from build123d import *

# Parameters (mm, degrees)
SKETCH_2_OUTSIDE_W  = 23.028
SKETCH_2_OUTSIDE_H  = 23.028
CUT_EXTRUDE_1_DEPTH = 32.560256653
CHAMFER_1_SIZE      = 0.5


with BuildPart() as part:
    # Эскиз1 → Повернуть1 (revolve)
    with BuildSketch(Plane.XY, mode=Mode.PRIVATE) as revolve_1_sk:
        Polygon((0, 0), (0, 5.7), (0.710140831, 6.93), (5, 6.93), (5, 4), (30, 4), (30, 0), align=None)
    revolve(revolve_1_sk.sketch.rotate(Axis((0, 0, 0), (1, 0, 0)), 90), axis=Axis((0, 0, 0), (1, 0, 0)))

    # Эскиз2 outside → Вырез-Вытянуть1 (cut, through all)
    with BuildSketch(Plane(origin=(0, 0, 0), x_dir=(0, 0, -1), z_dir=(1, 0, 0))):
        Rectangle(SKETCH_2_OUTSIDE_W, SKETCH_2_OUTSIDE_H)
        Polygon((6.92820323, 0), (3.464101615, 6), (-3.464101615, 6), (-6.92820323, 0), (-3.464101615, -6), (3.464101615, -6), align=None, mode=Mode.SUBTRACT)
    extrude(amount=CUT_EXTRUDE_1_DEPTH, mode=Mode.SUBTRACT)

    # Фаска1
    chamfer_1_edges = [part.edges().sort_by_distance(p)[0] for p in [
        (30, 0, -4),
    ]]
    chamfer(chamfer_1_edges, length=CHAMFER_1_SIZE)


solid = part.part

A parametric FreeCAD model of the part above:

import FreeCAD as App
import Part
import Sketcher
from FreeCAD import Vector
Q = App.Units.Quantity


def edges_at(feature, points):
    """Names of the edges that pass closest to the given points."""
    edges = feature.Shape.Edges
    near = lambda p: min(range(len(edges)), key=lambda i: edges[i].distToShape(Part.Vertex(*p))[0])
    return sorted({f"Edge{near(p) + 1}" for p in points})


def add_polygon(sketch, points):
    """Adds a closed chain of lines whose ends are joined by coincident constraints."""
    first, n = sketch.GeometryCount, len(points)
    for a, b in zip(points, points[1:] + points[:1]):
        sketch.addGeometry(Part.LineSegment(App.Vector(*a, 0), App.Vector(*b, 0)), False)
    for i in range(n):
        sketch.addConstraint(Sketcher.Constraint("Coincident", first + i, 2, first + (i + 1) % n, 1))

doc = App.newDocument("Part")
body = doc.addObject("PartDesign::Body", "Body")

# Sketch on XY plane
sketch1 = body.newObject("Sketcher::SketchObject", "Sketch")
sketch1.AttachmentSupport = (doc.getObject("XY_Plane"), [""])
sketch1.MapMode = "FlatFace"
add_polygon(sketch1, [(0, 5.7), (0, 0), (30, 0), (30, 4), (5, 4), (5, 6.9), (0.7, 6.9)])  # lines 0-6
sketch1.addConstraint([
    Sketcher.Constraint("Vertical", 0),
    Sketcher.Constraint("Horizontal", 1),
    Sketcher.Constraint("Vertical", 2),
    Sketcher.Constraint("Horizontal", 3),
    Sketcher.Constraint("Vertical", 4),
    Sketcher.Constraint("Horizontal", 5),
    Sketcher.Constraint("Coincident", 0, 2, -1, 1),
    Sketcher.Constraint("DistanceX", 1, 1, 1, 2, 30.0),
    Sketcher.Constraint("DistanceX", 3, 2, 3, 1, 25.0),
    Sketcher.Constraint("DistanceY", 2, 1, 2, 2, 4.0),
    Sketcher.Constraint("Angle", 6, Q("-120 deg")),
    Sketcher.Constraint("DistanceY", 0, 2, 0, 1, 5.7),
    Sketcher.Constraint("DistanceY", 4, 1, 4, 2, 2.93),
])
revolution = body.newObject("PartDesign::Revolution", "Revolution")
revolution.Profile = sketch1
revolution.ReferenceAxis = (sketch1, ["H_Axis"])
revolution.Angle = 360

# Sketch on YZ plane
sketch2 = body.newObject("Sketcher::SketchObject", "Sketch001")
sketch2.AttachmentSupport = (doc.getObject("YZ_Plane"), [""])
sketch2.MapMode = "FlatFace"
add_polygon(sketch2, [(12, 12), (-12, 12), (-12, -12), (12, -12)])  # lines 0-3
add_polygon(sketch2, [(6, -3), (0, -7), (-6, -3), (-6, 3), (0, 7), (6, 3)])  # lines 4-9
sketch2.addConstraint([
    Sketcher.Constraint("Horizontal", 0),
    Sketcher.Constraint("Vertical", 1),
    Sketcher.Constraint("Horizontal", 2),
    Sketcher.Constraint("Vertical", 3),
    Sketcher.Constraint("Vertical", 6),
    Sketcher.Constraint("Vertical", 9),
    Sketcher.Constraint("Symmetric", 0, 2, 2, 2, -1, 1),
    Sketcher.Constraint("Symmetric", 4, 2, 7, 2, -1, 1),
    Sketcher.Constraint("Symmetric", 5, 2, 8, 2, -1, 1),
    Sketcher.Constraint("PointOnObject", 4, 2, -2),
    Sketcher.Constraint("Parallel", 4, 7),
    Sketcher.Constraint("Horizontal", 6, 2, 8, 2),
    Sketcher.Constraint("Equal", 2, 1),
    Sketcher.Constraint("Angle", 4, Q("-150 deg")),
    Sketcher.Constraint("DistanceX", 5, 2, -1, 1, 6.0),
    Sketcher.Constraint("DistanceX", 0, 2, 0, 1, 23.028),
    Sketcher.Constraint("DistanceY", 5, 2, -1, 1, 3.464102),
])
pocket1 = body.newObject("PartDesign::Pocket", "Pocket")
pocket1.Profile = sketch2
pocket1.Type = "ThroughAll"
pocket1.Reversed = True
doc.recompute()

chamfer = body.newObject("PartDesign::Chamfer", "Chamfer")
chamfer.Base = (pocket1, edges_at(pocket1, [(30, 0, -4)]))
chamfer.Size = 0.5

doc.recompute()
